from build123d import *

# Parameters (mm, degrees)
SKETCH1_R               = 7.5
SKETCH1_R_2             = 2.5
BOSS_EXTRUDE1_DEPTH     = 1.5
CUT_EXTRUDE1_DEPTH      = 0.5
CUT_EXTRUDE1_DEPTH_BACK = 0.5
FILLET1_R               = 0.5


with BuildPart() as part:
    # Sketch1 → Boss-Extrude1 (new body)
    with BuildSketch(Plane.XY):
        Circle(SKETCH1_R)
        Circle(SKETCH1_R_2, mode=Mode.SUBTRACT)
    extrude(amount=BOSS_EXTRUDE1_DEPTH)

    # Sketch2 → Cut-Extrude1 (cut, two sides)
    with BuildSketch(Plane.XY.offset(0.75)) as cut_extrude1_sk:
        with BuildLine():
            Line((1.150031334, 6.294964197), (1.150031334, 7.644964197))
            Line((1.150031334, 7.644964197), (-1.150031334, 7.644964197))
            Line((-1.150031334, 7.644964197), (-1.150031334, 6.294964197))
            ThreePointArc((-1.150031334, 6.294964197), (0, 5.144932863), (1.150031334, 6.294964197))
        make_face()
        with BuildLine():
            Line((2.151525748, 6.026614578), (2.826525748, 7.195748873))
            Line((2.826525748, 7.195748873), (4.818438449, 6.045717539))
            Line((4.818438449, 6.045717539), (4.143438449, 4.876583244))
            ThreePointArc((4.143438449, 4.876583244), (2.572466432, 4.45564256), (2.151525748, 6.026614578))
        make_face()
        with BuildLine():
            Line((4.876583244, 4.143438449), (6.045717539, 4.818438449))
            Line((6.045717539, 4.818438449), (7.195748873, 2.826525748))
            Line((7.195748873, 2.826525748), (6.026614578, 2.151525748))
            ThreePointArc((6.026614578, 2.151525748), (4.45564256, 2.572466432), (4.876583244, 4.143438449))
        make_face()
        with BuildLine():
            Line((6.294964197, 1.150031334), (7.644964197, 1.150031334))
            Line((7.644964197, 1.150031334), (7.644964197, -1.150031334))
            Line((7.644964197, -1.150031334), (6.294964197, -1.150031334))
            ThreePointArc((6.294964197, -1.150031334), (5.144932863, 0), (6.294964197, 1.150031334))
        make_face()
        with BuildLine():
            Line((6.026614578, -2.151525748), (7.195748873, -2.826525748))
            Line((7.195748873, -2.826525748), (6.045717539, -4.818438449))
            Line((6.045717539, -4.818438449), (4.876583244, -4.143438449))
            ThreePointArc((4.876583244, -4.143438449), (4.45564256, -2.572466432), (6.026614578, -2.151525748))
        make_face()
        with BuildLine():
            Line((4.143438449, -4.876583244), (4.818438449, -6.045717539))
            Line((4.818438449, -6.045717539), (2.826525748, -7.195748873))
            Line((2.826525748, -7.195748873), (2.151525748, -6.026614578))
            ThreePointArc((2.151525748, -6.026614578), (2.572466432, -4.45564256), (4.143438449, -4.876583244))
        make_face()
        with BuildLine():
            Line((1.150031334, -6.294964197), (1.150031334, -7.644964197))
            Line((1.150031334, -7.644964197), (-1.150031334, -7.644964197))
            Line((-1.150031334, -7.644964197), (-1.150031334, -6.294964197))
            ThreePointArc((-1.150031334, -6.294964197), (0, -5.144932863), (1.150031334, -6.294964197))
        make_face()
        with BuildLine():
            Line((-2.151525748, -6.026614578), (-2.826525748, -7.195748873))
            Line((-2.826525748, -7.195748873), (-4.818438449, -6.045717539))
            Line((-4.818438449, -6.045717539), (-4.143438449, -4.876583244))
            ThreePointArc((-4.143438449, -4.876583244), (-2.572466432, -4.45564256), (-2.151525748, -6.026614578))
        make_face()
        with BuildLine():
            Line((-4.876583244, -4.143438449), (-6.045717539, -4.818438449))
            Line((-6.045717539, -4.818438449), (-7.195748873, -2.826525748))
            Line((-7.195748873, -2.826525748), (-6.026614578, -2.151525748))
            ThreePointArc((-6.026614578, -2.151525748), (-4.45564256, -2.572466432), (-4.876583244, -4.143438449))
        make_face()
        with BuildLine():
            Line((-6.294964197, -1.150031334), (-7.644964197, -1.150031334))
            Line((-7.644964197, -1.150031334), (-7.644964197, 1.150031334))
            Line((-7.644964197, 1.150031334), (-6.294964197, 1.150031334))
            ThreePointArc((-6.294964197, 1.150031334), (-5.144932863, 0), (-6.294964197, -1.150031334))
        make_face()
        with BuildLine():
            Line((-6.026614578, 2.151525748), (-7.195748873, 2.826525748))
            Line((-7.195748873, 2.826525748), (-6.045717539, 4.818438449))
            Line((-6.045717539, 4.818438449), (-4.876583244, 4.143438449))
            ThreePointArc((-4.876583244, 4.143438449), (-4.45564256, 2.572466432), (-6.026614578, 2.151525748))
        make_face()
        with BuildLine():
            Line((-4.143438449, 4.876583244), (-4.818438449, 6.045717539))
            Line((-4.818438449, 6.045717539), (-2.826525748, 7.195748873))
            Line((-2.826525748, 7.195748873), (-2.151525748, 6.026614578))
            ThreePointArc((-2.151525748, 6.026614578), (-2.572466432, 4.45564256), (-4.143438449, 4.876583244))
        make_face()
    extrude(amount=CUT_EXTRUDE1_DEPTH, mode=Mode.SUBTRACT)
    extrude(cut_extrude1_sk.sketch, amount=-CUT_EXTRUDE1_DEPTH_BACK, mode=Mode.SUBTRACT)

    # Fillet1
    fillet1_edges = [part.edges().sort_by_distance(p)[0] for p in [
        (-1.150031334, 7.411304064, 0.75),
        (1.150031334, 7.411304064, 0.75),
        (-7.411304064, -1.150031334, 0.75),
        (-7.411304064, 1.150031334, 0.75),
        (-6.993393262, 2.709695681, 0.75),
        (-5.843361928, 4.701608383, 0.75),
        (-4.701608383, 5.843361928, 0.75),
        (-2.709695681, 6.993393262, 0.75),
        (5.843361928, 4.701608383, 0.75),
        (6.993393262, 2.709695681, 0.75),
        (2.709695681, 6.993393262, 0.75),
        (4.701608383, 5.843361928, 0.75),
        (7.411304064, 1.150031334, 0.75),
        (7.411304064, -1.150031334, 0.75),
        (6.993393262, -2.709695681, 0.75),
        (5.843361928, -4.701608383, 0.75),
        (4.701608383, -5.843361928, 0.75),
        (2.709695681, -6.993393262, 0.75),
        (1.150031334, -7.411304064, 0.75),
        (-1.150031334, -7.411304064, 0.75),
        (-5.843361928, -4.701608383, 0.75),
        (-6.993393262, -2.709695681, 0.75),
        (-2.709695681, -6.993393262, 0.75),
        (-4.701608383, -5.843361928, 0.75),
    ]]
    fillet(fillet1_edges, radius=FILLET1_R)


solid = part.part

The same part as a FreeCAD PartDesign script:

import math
import FreeCAD as App
import Part
import Sketcher
from FreeCAD import Vector
Q = App.Units.Quantity


def edges_at(feature, points):
    """Names of the edges that pass closest to the given points."""
    edges = feature.Shape.Edges
    near = lambda p: min(range(len(edges)), key=lambda i: edges[i].distToShape(Part.Vertex(*p))[0])
    return sorted({f"Edge{near(p) + 1}" for p in points})

doc = App.newDocument("Part")
params = doc.addObject("Spreadsheet::Sheet", "Params")
for row, (alias, value) in enumerate([
    ("sketch1_diameter", "15 mm"),
    ("sketch1_diameter2", "5 mm"),
    ("pad1_length", "1.5 mm"),
    ("sketch2_width", "1.35 mm"),
    ("sketch2_length", "1.35 mm"),
    ("pocket1_length", "0.5 mm"),
    ("pocket1_length2", "0.5 mm"),
    ("fillet_radius", "0.5 mm"),
], start=1):
    params.set(f"A{row}", alias)
    params.set(f"B{row}", "=" + value)
    params.setAlias(f"B{row}", alias)

body = doc.addObject("PartDesign::Body", "Body")

# Sketch on XY plane
sketch1 = doc.addObject("Sketcher::SketchObject", "Sketch")
body.addObject(sketch1)
sketch1.AttachmentSupport = (doc.XY_Plane, [""])
sketch1.MapMode = "FlatFace"
sketch1.addGeometry([
    Part.Circle(Vector(0, 0, 0), Vector(0, 0, 1), 7.5),
    Part.Circle(Vector(0, 0, 0), Vector(0, 0, 1), 2.5),
], False)
sketch1.addConstraint([
    Sketcher.Constraint("Coincident", 0, 3, -1, 1),
    Sketcher.Constraint("Coincident", 1, 3, -1, 1),
    Sketcher.Constraint("Diameter", 0, 15.0),
    Sketcher.Constraint("Diameter", 1, 5.0),
])
sketch1.setExpression("Constraints[2]", "Params.sketch1_diameter")
sketch1.setExpression("Constraints[3]", "Params.sketch1_diameter2")
pad1 = doc.addObject("PartDesign::Pad", "Pad")
body.addObject(pad1)
pad1.Profile = sketch1
pad1.setExpression("Length", "Params.pad1_length")

# Sketch on XY plane
sketch2 = doc.addObject("Sketcher::SketchObject", "Sketch001")
body.addObject(sketch2)
sketch2.AttachmentSupport = (doc.XY_Plane, [""])
sketch2.MapMode = "FlatFace"
sketch2.AttachmentOffset = App.Placement(Vector(0, 0, 0.75), App.Rotation())
sketch2.addGeometry([
    Part.LineSegment(Vector(1.150031, 6.294964, 0), Vector(1.150031, 7.644964, 0)),  # 0
    Part.LineSegment(Vector(1.150031, 7.644964, 0), Vector(-1.150031, 7.644964, 0)),  # 1
    Part.LineSegment(Vector(-1.150031, 7.644964, 0), Vector(-1.150031, 6.294964, 0)),  # 2
    Part.ArcOfCircle(Part.Circle(Vector(0, 6.294964, 0), Vector(0, 0, 1), 1.150031), math.radians(180), math.radians(360)),  # 3
    Part.LineSegment(Vector(2.826526, 7.195749, 0), Vector(2.151526, 6.026615, 0)),  # 4
    Part.ArcOfCircle(Part.Circle(Vector(3.147482, 5.451599, 0), Vector(0, 0, 1), 1.150031), math.radians(150), math.radians(330)),  # 5
    Part.LineSegment(Vector(4.143438, 4.876583, 0), Vector(4.818438, 6.045718, 0)),  # 6
    Part.LineSegment(Vector(4.818438, 6.045718, 0), Vector(2.826526, 7.195749, 0)),  # 7
    Part.LineSegment(Vector(6.045718, 4.818438, 0), Vector(4.876583, 4.143438, 0)),  # 8
    Part.ArcOfCircle(Part.Circle(Vector(5.451599, 3.147482, 0), Vector(0, 0, 1), 1.150031), math.radians(120), math.radians(300)),  # 9
    Part.LineSegment(Vector(6.026615, 2.151526, 0), Vector(7.195749, 2.826526, 0)),  # 10
    Part.LineSegment(Vector(7.195749, 2.826526, 0), Vector(6.045718, 4.818438, 0)),  # 11
    Part.LineSegment(Vector(7.644964, 1.150031, 0), Vector(6.294964, 1.150031, 0)),  # 12
    Part.ArcOfCircle(Part.Circle(Vector(6.294964, 0, 0), Vector(0, 0, 1), 1.150031), math.radians(90), math.radians(270)),  # 13
    Part.LineSegment(Vector(6.294964, -1.150031, 0), Vector(7.644964, -1.150031, 0)),  # 14
    Part.LineSegment(Vector(7.644964, -1.150031, 0), Vector(7.644964, 1.150031, 0)),  # 15
    Part.LineSegment(Vector(7.195749, -2.826526, 0), Vector(6.026615, -2.151526, 0)),  # 16
    Part.ArcOfCircle(Part.Circle(Vector(5.451599, -3.147482, 0), Vector(0, 0, 1), 1.150031), math.radians(60), math.radians(240)),  # 17
    Part.LineSegment(Vector(4.876583, -4.143438, 0), Vector(6.045718, -4.818438, 0)),  # 18
    Part.LineSegment(Vector(6.045718, -4.818438, 0), Vector(7.195749, -2.826526, 0)),  # 19
    Part.LineSegment(Vector(4.818438, -6.045718, 0), Vector(4.143438, -4.876583, 0)),  # 20
    Part.ArcOfCircle(Part.Circle(Vector(3.147482, -5.451599, 0), Vector(0, 0, 1), 1.150031), math.radians(30), math.radians(210)),  # 21
    Part.LineSegment(Vector(2.151526, -6.026615, 0), Vector(2.826526, -7.195749, 0)),  # 22
    Part.LineSegment(Vector(2.826526, -7.195749, 0), Vector(4.818438, -6.045718, 0)),  # 23
    Part.LineSegment(Vector(1.150031, -7.644964, 0), Vector(1.150031, -6.294964, 0)),  # 24
    Part.ArcOfCircle(Part.Circle(Vector(0, -6.294964, 0), Vector(0, 0, 1), 1.150031), math.radians(0), math.radians(180)),  # 25
    Part.LineSegment(Vector(-1.150031, -6.294964, 0), Vector(-1.150031, -7.644964, 0)),  # 26
    Part.LineSegment(Vector(-1.150031, -7.644964, 0), Vector(1.150031, -7.644964, 0)),  # 27
    Part.LineSegment(Vector(-2.826526, -7.195749, 0), Vector(-2.151526, -6.026615, 0)),  # 28
    Part.ArcOfCircle(Part.Circle(Vector(-3.147482, -5.451599, 0), Vector(0, 0, 1), 1.150031), math.radians(-30), math.radians(150)),  # 29
    Part.LineSegment(Vector(-4.143438, -4.876583, 0), Vector(-4.818438, -6.045718, 0)),  # 30
    Part.LineSegment(Vector(-4.818438, -6.045718, 0), Vector(-2.826526, -7.195749, 0)),  # 31
    Part.LineSegment(Vector(-6.045718, -4.818438, 0), Vector(-4.876583, -4.143438, 0)),  # 32
    Part.ArcOfCircle(Part.Circle(Vector(-5.451599, -3.147482, 0), Vector(0, 0, 1), 1.150031), math.radians(-60), math.radians(120)),  # 33
    Part.LineSegment(Vector(-6.026615, -2.151526, 0), Vector(-7.195749, -2.826526, 0)),  # 34
    Part.LineSegment(Vector(-7.195749, -2.826526, 0), Vector(-6.045718, -4.818438, 0)),  # 35
    Part.LineSegment(Vector(-7.644964, -1.150031, 0), Vector(-6.294964, -1.150031, 0)),  # 36
    Part.ArcOfCircle(Part.Circle(Vector(-6.294964, 0, 0), Vector(0, 0, 1), 1.150031), math.radians(-90), math.radians(90)),  # 37
    Part.LineSegment(Vector(-6.294964, 1.150031, 0), Vector(-7.644964, 1.150031, 0)),  # 38
    Part.LineSegment(Vector(-7.644964, 1.150031, 0), Vector(-7.644964, -1.150031, 0)),  # 39
    Part.LineSegment(Vector(-7.195749, 2.826526, 0), Vector(-6.026615, 2.151526, 0)),  # 40
    Part.ArcOfCircle(Part.Circle(Vector(-5.451599, 3.147482, 0), Vector(0, 0, 1), 1.150031), math.radians(-120), math.radians(60)),  # 41
    Part.LineSegment(Vector(-4.876583, 4.143438, 0), Vector(-6.045718, 4.818438, 0)),  # 42
    Part.LineSegment(Vector(-6.045718, 4.818438, 0), Vector(-7.195749, 2.826526, 0)),  # 43
    Part.LineSegment(Vector(-4.818438, 6.045718, 0), Vector(-4.143438, 4.876583, 0)),  # 44
    Part.ArcOfCircle(Part.Circle(Vector(-3.147482, 5.451599, 0), Vector(0, 0, 1), 1.150031), math.radians(-150), math.radians(30)),  # 45
    Part.LineSegment(Vector(-2.151526, 6.026615, 0), Vector(-2.826526, 7.195749, 0)),  # 46
    Part.LineSegment(Vector(-2.826526, 7.195749, 0), Vector(-4.818438, 6.045718, 0)),  # 47
], False)
sketch2.addConstraint([
    Sketcher.Constraint("Coincident", 0, 2, 1, 1),
    Sketcher.Constraint("Coincident", 1, 2, 2, 1),
    Sketcher.Constraint("Tangent", 2, 2, 3, 1),
    Sketcher.Constraint("Tangent", 3, 2, 0, 1),
    Sketcher.Constraint("Tangent", 4, 2, 5, 1),
    Sketcher.Constraint("Tangent", 5, 2, 6, 1),
    Sketcher.Constraint("Coincident", 6, 2, 7, 1),
    Sketcher.Constraint("Coincident", 7, 2, 4, 1),
    Sketcher.Constraint("Tangent", 8, 2, 9, 1),
    Sketcher.Constraint("Tangent", 9, 2, 10, 1),
    Sketcher.Constraint("Coincident", 10, 2, 11, 1),
    Sketcher.Constraint("Coincident", 11, 2, 8, 1),
    Sketcher.Constraint("Tangent", 12, 2, 13, 1),
    Sketcher.Constraint("Tangent", 13, 2, 14, 1),
    Sketcher.Constraint("Coincident", 14, 2, 15, 1),
    Sketcher.Constraint("Coincident", 15, 2, 12, 1),
    Sketcher.Constraint("Tangent", 16, 2, 17, 1),
    Sketcher.Constraint("Tangent", 17, 2, 18, 1),
    Sketcher.Constraint("Coincident", 18, 2, 19, 1),
    Sketcher.Constraint("Coincident", 19, 2, 16, 1),
    Sketcher.Constraint("Tangent", 20, 2, 21, 1),
    Sketcher.Constraint("Tangent", 21, 2, 22, 1),
    Sketcher.Constraint("Coincident", 22, 2, 23, 1),
    Sketcher.Constraint("Coincident", 23, 2, 20, 1),
    Sketcher.Constraint("Tangent", 24, 2, 25, 1),
    Sketcher.Constraint("Tangent", 25, 2, 26, 1),
    Sketcher.Constraint("Coincident", 26, 2, 27, 1),
    Sketcher.Constraint("Coincident", 27, 2, 24, 1),
    Sketcher.Constraint("Tangent", 28, 2, 29, 1),
    Sketcher.Constraint("Tangent", 29, 2, 30, 1),
    Sketcher.Constraint("Coincident", 30, 2, 31, 1),
    Sketcher.Constraint("Coincident", 31, 2, 28, 1),
    Sketcher.Constraint("Tangent", 32, 2, 33, 1),
    Sketcher.Constraint("Tangent", 33, 2, 34, 1),
    Sketcher.Constraint("Coincident", 34, 2, 35, 1),
    Sketcher.Constraint("Coincident", 35, 2, 32, 1),
    Sketcher.Constraint("Tangent", 36, 2, 37, 1),
    Sketcher.Constraint("Tangent", 37, 2, 38, 1),
    Sketcher.Constraint("Coincident", 38, 2, 39, 1),
    Sketcher.Constraint("Coincident", 39, 2, 36, 1),
    Sketcher.Constraint("Tangent", 40, 2, 41, 1),
    Sketcher.Constraint("Tangent", 41, 2, 42, 1),
    Sketcher.Constraint("Coincident", 42, 2, 43, 1),
    Sketcher.Constraint("Coincident", 43, 2, 40, 1),
    Sketcher.Constraint("Tangent", 44, 2, 45, 1),
    Sketcher.Constraint("Tangent", 45, 2, 46, 1),
    Sketcher.Constraint("Coincident", 46, 2, 47, 1),
    Sketcher.Constraint("Coincident", 47, 2, 44, 1),
    Sketcher.Constraint("Vertical", 0),
    Sketcher.Constraint("Horizontal", 1),
    Sketcher.Constraint("Vertical", 2),
    Sketcher.Constraint("Horizontal", 12),
    Sketcher.Constraint("Horizontal", 14),
    Sketcher.Constraint("Vertical", 15),
    Sketcher.Constraint("Vertical", 24),
    Sketcher.Constraint("Vertical", 26),
    Sketcher.Constraint("Horizontal", 27),
    Sketcher.Constraint("Horizontal", 36),
    Sketcher.Constraint("Horizontal", 38),
    Sketcher.Constraint("Vertical", 39),
    Sketcher.Constraint("Equal", 3, 5),
    Sketcher.Constraint("Equal", 5, 9),
    Sketcher.Constraint("Equal", 9, 13),
    Sketcher.Constraint("Equal", 13, 17),
    Sketcher.Constraint("Equal", 17, 21),
    Sketcher.Constraint("Equal", 21, 25),
    Sketcher.Constraint("Equal", 25, 29),
    Sketcher.Constraint("Equal", 29, 33),
    Sketcher.Constraint("Equal", 33, 37),
    Sketcher.Constraint("Equal", 37, 41),
    Sketcher.Constraint("Equal", 41, 45),
    Sketcher.Constraint("Symmetric", 3, 3, 25, 3, -1, 1),
    Sketcher.Constraint("Symmetric", 5, 3, 29, 3, -1, 1),
    Sketcher.Constraint("Symmetric", 9, 3, 33, 3, -1, 1),
    Sketcher.Constraint("Symmetric", 13, 3, 37, 3, -1, 1),
    Sketcher.Constraint("Symmetric", 17, 3, 41, 3, -1, 1),
    Sketcher.Constraint("Symmetric", 21, 3, 45, 3, -1, 1),
    Sketcher.Constraint("Symmetric", 6, 2, 30, 2, -1, 1),
    Sketcher.Constraint("Symmetric", 7, 2, 31, 2, -1, 1),
    Sketcher.Constraint("Symmetric", 10, 2, 34, 2, -1, 1),
    Sketcher.Constraint("Symmetric", 11, 2, 35, 2, -1, 1),
    Sketcher.Constraint("Symmetric", 18, 2, 42, 2, -1, 1),
    Sketcher.Constraint("Symmetric", 19, 2, 43, 2, -1, 1),
    Sketcher.Constraint("Symmetric", 22, 2, 46, 2, -1, 1),
    Sketcher.Constraint("Symmetric", 23, 2, 47, 2, -1, 1),
    Sketcher.Constraint("Symmetric", 21, 3, 29, 3, -2),
    Sketcher.Constraint("Symmetric", 17, 3, 33, 3, -2),
    Sketcher.Constraint("Symmetric", 23, 2, 30, 2, -2),
    Sketcher.Constraint("Symmetric", 22, 2, 31, 2, -2),
    Sketcher.Constraint("Symmetric", 19, 2, 34, 2, -2),
    Sketcher.Constraint("Symmetric", 18, 2, 35, 2, -2),
    Sketcher.Constraint("Symmetric", 15, 2, 38, 2, -2),
    Sketcher.Constraint("Symmetric", 1, 2, 26, 2, -1),
    Sketcher.Constraint("Parallel", 4, 6),
    Sketcher.Constraint("Perpendicular", 6, 7),
    Sketcher.Constraint("Parallel", 8, 10),
    Sketcher.Constraint("Perpendicular", 10, 11),
    Sketcher.Constraint("Parallel", 7, 16),
    Sketcher.Constraint("Equal", 38, 0),
    Sketcher.Constraint("Equal", 6, 8),
    Sketcher.Constraint("Angle", 4, Q("-120 deg")),
    Sketcher.Constraint("DistanceX", 12, 2, 12, 1, 1.35),
    Sketcher.Constraint("Distance", 4, 1.35),
    Sketcher.Constraint("Radius", 3, 1.150031),
    Sketcher.Constraint("DistanceY", -1, 1, 5, 3, 5.451599),
    Sketcher.Constraint("DistanceX", -1, 1, 9, 3, 5.451599),
    Sketcher.Constraint("DistanceY", 9, 3, 5, 2, 1.729101),
    Sketcher.Constraint("DistanceX", 5, 3, 8, 2, 1.729101),
    Sketcher.Constraint("DistanceY", 4, 2, 3, 2, 0.26835),
    Sketcher.Constraint("DistanceX", 9, 2, 13, 3, 0.26835),
])
sketch2.setExpression("Constraints[101]", "Params.sketch2_width")
sketch2.setExpression("Constraints[102]", "Params.sketch2_length")
pocket1 = doc.addObject("PartDesign::Pocket", "Pocket")
body.addObject(pocket1)
pocket1.Profile = sketch2
pocket1.Type = "TwoLengths"
pocket1.setExpression("Length", "Params.pocket1_length")
pocket1.setExpression("Length2", "Params.pocket1_length2")
pocket1.Reversed = True
doc.recompute()

fillet = doc.addObject("PartDesign::Fillet", "Fillet")
body.addObject(fillet)
fillet.Base = (pocket1, edges_at(pocket1, [
    (-1.15, 7.411, 0.75),
    (1.15, 7.411, 0.75),
    (-7.411, -1.15, 0.75),
    (-7.411, 1.15, 0.75),
    (-6.993, 2.71, 0.75),
    (-5.843, 4.702, 0.75),
    (-4.702, 5.843, 0.75),
    (-2.71, 6.993, 0.75),
    (5.843, 4.702, 0.75),
    (6.993, 2.71, 0.75),
    (2.71, 6.993, 0.75),
    (4.702, 5.843, 0.75),
    (7.411, 1.15, 0.75),
    (7.411, -1.15, 0.75),
    (6.993, -2.71, 0.75),
    (5.843, -4.702, 0.75),
    (4.702, -5.843, 0.75),
    (2.71, -6.993, 0.75),
    (1.15, -7.411, 0.75),
    (-1.15, -7.411, 0.75),
    (-5.843, -4.702, 0.75),
    (-6.993, -2.71, 0.75),
    (-2.71, -6.993, 0.75),
    (-4.702, -5.843, 0.75),
]))
fillet.setExpression("Radius", "Params.fillet_radius")

doc.recompute()
